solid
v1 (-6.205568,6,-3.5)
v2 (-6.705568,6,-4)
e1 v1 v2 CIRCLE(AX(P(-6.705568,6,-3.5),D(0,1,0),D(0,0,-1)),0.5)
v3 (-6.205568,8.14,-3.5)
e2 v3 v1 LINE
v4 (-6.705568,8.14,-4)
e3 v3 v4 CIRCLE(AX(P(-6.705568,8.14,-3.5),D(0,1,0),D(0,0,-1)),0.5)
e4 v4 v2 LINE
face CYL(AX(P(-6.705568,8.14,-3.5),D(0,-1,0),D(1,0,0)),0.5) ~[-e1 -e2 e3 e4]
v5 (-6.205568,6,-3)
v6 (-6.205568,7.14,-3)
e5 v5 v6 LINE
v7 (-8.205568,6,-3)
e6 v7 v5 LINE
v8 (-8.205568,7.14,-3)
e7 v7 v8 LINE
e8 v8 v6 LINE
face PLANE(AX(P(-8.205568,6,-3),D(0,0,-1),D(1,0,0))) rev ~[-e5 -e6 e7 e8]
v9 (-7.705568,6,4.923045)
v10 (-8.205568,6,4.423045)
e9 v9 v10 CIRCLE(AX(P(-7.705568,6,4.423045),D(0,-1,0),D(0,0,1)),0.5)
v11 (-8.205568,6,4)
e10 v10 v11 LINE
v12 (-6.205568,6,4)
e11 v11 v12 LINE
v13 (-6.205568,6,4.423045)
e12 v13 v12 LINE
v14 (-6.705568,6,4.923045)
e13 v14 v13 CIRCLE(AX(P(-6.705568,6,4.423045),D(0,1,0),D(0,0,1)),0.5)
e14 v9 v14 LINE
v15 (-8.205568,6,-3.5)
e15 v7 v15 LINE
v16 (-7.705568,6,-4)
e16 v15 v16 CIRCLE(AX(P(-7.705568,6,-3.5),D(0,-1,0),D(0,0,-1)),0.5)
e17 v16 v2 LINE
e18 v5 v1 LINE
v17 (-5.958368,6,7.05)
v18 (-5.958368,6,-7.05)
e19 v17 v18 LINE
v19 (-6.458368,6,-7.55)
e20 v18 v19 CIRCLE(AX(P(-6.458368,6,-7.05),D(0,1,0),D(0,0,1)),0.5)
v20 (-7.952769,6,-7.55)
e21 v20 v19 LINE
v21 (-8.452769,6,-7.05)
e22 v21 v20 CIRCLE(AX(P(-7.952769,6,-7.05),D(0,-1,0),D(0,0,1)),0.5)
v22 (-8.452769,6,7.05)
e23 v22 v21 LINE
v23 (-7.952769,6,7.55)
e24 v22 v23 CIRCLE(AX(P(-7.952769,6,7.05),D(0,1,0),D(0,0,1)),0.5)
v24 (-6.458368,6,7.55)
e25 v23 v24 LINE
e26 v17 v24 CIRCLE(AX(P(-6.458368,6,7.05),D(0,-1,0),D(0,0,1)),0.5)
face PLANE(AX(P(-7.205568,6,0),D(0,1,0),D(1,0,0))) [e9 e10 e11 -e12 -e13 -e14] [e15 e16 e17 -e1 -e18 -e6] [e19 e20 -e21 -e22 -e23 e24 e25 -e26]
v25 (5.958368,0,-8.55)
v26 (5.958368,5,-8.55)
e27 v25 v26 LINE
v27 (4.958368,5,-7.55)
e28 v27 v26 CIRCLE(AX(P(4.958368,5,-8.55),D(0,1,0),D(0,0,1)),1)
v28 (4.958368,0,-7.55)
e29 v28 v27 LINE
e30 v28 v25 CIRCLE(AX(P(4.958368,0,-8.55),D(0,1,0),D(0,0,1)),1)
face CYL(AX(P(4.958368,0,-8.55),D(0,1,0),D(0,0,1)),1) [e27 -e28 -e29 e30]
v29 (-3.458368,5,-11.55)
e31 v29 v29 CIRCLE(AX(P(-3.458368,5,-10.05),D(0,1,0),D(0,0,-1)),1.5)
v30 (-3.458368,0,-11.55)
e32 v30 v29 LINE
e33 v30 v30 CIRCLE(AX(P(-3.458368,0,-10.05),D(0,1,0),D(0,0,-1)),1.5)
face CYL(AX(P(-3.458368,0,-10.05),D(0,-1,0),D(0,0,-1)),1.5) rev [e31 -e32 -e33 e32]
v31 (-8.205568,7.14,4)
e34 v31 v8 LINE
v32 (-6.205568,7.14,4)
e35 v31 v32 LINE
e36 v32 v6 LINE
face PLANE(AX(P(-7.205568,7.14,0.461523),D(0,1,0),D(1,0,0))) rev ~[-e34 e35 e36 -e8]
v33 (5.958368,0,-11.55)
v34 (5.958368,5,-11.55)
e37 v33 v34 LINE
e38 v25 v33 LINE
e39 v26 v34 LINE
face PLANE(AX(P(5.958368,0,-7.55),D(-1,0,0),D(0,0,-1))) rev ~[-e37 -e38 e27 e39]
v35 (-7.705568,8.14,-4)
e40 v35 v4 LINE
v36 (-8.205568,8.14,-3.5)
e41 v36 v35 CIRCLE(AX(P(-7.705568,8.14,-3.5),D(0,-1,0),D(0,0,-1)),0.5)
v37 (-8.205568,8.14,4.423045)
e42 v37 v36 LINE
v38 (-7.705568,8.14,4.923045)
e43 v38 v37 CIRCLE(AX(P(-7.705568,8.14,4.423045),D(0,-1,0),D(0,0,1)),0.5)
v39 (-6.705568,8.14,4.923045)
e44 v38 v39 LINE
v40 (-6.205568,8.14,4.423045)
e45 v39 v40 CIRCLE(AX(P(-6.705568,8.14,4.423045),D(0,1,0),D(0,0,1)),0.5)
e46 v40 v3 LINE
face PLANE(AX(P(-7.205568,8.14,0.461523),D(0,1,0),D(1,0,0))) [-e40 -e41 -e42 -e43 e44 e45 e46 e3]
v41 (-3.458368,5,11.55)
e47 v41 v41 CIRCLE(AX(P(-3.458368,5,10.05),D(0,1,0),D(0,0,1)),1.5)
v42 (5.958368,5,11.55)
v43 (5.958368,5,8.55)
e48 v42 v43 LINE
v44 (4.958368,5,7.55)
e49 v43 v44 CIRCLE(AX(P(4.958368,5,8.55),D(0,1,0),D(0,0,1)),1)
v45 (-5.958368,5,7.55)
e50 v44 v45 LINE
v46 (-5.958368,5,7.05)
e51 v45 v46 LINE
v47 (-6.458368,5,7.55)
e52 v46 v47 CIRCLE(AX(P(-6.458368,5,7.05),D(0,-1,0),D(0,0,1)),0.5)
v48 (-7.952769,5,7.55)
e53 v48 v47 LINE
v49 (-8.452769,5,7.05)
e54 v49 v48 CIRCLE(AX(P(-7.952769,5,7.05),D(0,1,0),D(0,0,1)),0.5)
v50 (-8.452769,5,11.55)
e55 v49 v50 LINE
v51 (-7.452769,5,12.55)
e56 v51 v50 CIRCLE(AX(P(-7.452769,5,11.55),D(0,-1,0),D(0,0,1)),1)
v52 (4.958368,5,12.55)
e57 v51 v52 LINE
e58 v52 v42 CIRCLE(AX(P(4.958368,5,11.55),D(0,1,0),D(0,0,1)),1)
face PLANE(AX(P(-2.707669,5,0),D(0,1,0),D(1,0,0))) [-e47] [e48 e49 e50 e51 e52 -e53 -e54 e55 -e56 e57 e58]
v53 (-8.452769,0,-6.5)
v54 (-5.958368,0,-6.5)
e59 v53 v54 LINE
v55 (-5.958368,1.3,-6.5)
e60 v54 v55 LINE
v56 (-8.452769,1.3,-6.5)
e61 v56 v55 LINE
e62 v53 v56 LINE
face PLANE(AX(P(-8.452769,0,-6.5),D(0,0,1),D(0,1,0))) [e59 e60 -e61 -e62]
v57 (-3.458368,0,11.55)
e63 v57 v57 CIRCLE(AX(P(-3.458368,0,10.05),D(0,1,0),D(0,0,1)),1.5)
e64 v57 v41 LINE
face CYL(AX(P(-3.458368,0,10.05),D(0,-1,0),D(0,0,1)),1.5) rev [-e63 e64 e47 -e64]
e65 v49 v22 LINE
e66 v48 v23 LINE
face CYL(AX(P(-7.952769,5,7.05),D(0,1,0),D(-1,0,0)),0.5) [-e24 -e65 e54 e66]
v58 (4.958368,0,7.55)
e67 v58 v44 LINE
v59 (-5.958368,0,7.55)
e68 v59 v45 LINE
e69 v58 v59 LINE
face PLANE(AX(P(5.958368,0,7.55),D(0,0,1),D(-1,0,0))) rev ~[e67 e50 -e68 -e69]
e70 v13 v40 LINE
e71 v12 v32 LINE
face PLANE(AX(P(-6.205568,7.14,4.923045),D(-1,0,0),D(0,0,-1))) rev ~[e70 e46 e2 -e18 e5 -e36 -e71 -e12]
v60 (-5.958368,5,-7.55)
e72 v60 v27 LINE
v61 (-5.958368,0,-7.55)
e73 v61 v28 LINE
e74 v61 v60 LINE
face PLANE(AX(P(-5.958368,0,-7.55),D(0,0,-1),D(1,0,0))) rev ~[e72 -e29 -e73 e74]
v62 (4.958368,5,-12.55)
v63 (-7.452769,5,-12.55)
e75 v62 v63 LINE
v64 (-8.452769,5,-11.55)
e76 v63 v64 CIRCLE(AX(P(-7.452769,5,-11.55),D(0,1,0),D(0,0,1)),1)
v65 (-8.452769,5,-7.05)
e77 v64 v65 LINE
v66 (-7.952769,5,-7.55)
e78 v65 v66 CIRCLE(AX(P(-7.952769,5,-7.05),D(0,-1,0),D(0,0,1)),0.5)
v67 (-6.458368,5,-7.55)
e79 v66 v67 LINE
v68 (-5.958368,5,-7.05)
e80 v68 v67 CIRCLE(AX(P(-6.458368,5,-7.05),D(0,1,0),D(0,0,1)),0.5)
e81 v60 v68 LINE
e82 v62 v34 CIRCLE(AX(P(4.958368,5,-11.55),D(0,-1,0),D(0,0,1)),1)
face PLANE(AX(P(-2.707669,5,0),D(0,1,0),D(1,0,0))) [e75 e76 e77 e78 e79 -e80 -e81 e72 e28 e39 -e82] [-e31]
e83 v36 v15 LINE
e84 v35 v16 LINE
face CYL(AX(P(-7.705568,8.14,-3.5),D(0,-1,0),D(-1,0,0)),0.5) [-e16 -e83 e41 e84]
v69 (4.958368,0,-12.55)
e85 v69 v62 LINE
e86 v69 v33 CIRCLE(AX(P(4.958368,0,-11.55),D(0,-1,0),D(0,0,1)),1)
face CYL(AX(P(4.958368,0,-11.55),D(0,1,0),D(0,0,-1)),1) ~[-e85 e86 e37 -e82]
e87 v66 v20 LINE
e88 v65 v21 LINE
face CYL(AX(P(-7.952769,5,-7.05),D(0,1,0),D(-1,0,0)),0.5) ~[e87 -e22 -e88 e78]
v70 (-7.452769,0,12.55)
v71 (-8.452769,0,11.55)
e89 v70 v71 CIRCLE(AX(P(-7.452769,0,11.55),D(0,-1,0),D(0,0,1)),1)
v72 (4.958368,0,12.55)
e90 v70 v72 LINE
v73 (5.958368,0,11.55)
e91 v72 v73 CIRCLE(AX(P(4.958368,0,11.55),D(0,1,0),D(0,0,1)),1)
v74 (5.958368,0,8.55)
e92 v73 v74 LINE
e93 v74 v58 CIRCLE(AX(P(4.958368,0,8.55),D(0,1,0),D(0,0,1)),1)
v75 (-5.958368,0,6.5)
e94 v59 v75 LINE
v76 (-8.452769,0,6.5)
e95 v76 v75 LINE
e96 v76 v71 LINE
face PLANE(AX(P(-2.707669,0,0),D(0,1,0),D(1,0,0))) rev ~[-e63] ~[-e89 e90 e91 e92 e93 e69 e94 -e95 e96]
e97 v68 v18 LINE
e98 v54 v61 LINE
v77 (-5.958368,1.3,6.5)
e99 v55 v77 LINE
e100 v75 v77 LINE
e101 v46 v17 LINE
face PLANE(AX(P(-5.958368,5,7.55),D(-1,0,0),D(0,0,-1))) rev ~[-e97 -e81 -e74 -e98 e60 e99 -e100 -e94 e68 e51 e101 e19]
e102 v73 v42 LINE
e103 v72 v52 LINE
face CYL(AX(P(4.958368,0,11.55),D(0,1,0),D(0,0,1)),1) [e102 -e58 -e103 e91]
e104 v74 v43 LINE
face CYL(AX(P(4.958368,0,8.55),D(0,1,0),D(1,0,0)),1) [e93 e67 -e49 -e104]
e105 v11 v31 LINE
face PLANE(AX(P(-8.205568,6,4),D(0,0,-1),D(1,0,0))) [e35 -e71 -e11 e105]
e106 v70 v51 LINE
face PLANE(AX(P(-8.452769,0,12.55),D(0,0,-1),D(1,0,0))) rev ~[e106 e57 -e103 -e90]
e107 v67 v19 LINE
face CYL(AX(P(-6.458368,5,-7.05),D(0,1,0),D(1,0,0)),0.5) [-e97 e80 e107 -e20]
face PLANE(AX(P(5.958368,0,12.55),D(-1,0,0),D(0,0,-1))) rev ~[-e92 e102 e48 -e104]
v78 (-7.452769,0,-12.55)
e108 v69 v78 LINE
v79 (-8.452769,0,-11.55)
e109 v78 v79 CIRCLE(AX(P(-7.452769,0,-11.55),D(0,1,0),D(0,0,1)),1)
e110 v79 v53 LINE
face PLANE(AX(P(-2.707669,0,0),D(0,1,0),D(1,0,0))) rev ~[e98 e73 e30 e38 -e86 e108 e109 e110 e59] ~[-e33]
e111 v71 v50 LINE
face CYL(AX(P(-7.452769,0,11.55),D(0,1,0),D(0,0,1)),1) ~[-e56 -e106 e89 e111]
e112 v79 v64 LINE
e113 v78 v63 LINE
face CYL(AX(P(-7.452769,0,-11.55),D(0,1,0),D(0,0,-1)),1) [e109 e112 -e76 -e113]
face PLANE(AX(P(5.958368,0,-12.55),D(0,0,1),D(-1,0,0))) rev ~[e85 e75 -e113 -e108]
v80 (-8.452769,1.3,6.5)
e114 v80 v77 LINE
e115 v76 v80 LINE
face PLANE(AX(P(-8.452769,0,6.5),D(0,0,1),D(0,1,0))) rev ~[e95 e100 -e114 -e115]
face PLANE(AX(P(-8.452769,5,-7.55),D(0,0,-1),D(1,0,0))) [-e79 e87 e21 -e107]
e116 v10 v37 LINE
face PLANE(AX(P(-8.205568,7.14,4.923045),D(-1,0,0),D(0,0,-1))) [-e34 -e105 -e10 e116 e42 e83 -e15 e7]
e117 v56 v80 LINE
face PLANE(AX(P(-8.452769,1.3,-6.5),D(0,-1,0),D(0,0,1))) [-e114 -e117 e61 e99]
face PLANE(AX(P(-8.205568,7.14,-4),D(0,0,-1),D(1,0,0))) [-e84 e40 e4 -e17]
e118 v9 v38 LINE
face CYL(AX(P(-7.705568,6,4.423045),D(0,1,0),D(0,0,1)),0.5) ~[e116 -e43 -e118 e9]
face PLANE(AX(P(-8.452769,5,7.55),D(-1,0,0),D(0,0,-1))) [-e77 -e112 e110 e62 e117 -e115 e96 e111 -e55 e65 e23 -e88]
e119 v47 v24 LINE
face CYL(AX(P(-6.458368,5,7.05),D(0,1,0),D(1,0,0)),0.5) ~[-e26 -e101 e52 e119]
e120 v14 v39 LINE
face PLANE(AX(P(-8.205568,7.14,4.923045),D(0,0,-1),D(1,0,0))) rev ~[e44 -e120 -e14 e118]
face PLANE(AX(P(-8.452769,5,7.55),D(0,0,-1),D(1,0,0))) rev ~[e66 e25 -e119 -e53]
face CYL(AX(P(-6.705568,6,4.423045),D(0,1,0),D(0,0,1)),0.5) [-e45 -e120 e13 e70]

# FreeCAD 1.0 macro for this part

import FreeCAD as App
import Part
import Sketcher

V = App.Vector


def edges_at(feature, points):
    """Names of the edges that pass closest to the given points."""
    edges = feature.Shape.Edges
    near = lambda p: min(range(len(edges)), key=lambda i: edges[i].distToShape(Part.Vertex(*p))[0])
    return sorted({f"Edge{near(p) + 1}" for p in points})


def add_polygon(sketch, points):
    """Adds a closed chain of lines whose ends are joined by coincident constraints."""
    first, n = sketch.GeometryCount, len(points)
    for a, b in zip(points, points[1:] + points[:1]):
        sketch.addGeometry(Part.LineSegment(App.Vector(*a, 0), App.Vector(*b, 0)), False)
    for i in range(n):
        sketch.addConstraint(Sketcher.Constraint("Coincident", first + i, 2, first + (i + 1) % n, 1))

doc = App.newDocument("Part")
body = doc.addObject("PartDesign::Body", "Body")

sketch1 = body.newObject("Sketcher::SketchObject", "Sketch")
sketch1.AttachmentSupport = (doc.getObject("XZ_Plane"), [""])
sketch1.MapMode = "FlatFace"
add_polygon(sketch1, [(6, -12.6), (-8.5, -12.6), (-8.5, 12.6), (6, 12.6), (6, 7.5), (-6, 7.5), (-6, -7.5), (6, -7.5)])
sketch1.addGeometry(Part.Circle(V(-3.5, 10.1, 0), V(0, 0, 1), 1.5), False)
sketch1.addGeometry(Part.Circle(V(-3.5, -10.1, 0), V(0, 0, 1), 1.5), False)
sketch1.addConstraint(Sketcher.Constraint("Horizontal", 0))
sketch1.addConstraint(Sketcher.Constraint("Vertical", 1))
sketch1.addConstraint(Sketcher.Constraint("Horizontal", 2))
sketch1.addConstraint(Sketcher.Constraint("Vertical", 3))
sketch1.addConstraint(Sketcher.Constraint("Horizontal", 4))
sketch1.addConstraint(Sketcher.Constraint("Vertical", 5))
sketch1.addConstraint(Sketcher.Constraint("Horizontal", 6))
sketch1.addConstraint(Sketcher.Constraint("Vertical", 7))
sketch1.addConstraint(Sketcher.Constraint("Equal", 8, 9))
sketch1.addConstraint(Sketcher.Constraint("Symmetric", 3, 2, 5, 2, -1, 1))
sketch1.addConstraint(Sketcher.Constraint("Symmetric", 8, 3, 9, 3, -1))
sketch1.addConstraint(Sketcher.Constraint("Symmetric", 2, 2, 7, 2, -1))
sketch1.addConstraint(Sketcher.Constraint("Diameter", 8, 3.0))
sketch1.addConstraint(Sketcher.Constraint("DistanceY", 3, 2, 3, 1, 5.0))
sketch1.addConstraint(Sketcher.Constraint("DistanceY", 1, 1, 1, 2, 25.1))
sketch1.addConstraint(Sketcher.Constraint("DistanceY", 9, 3, 8, 3, 20.1))
sketch1.addConstraint(Sketcher.Constraint("DistanceX", 4, 2, 8, 3, 2.5))
sketch1.addConstraint(Sketcher.Constraint("DistanceX", 0, 2, 9, 3, 4.994401))
sketch1.addConstraint(Sketcher.Constraint("DistanceX", 0, 2, 0, 1, 14.411137))
pad1 = body.newObject("PartDesign::Pad", "Pad")
pad1.Profile = sketch1
pad1.Length = 5
pad1.Reversed = True

sketch2 = body.newObject("Sketcher::SketchObject", "Sketch001")
sketch2.AttachmentSupport = (doc.getObject("XZ_Plane"), [""])
sketch2.MapMode = "FlatFace"
sketch2.AttachmentOffset = App.Placement(V(0, 0, -5), App.Rotation())
add_polygon(sketch2, [(-8.5, -7.5), (-8.5, 7.5), (-6, 7.5), (-6, -7.5)])
sketch2.addConstraint(Sketcher.Constraint("Vertical", 0))
sketch2.addConstraint(Sketcher.Constraint("Horizontal", 1))
sketch2.addConstraint(Sketcher.Constraint("Vertical", 2))
sketch2.addConstraint(Sketcher.Constraint("Horizontal", 3))
sketch2.addConstraint(Sketcher.Constraint("DistanceY", 0, 1, 0, 2, 15.1))
sketch2.addConstraint(Sketcher.Constraint("DistanceY", -1, 1, 0, 2, 7.55))
sketch2.addConstraint(Sketcher.Constraint("DistanceX", 1, 1, 1, 2, 2.494401))
sketch2.addConstraint(Sketcher.Constraint("DistanceX", 0, 2, -1, 1, 8.452769))
pad2 = body.newObject("PartDesign::Pad", "Pad001")
pad2.Profile = sketch2
pad2.Length = 1
pad2.Reversed = True

sketch3 = body.newObject("Sketcher::SketchObject", "Sketch002")
sketch3.AttachmentSupport = (doc.getObject("YZ_Plane"), [""])
sketch3.MapMode = "FlatFace"
sketch3.AttachmentOffset = App.Placement(V(0, 0, -8.452769), App.Rotation())
add_polygon(sketch3, [(1.3, -6.5), (0, -6.5), (0, 6.5), (1.3, 6.5)])
sketch3.addConstraint(Sketcher.Constraint("Horizontal", 0))
sketch3.addConstraint(Sketcher.Constraint("Vertical", 1))
sketch3.addConstraint(Sketcher.Constraint("Horizontal", 2))
sketch3.addConstraint(Sketcher.Constraint("Vertical", 3))
sketch3.addConstraint(Sketcher.Constraint("Symmetric", 0, 2, 1, 2, -1, 1))
sketch3.addConstraint(Sketcher.Constraint("DistanceY", 1, 1, 1, 2, 13.0))
sketch3.addConstraint(Sketcher.Constraint("DistanceX", 0, 2, 0, 1, 1.3))
pocket1 = body.newObject("PartDesign::Pocket", "Pocket")
pocket1.Profile = sketch3
pocket1.Type = "ThroughAll"
pocket1.Reversed = True

sketch4 = body.newObject("Sketcher::SketchObject", "Sketch003")
sketch4.AttachmentSupport = (doc.getObject("XZ_Plane"), [""])
sketch4.MapMode = "FlatFace"
sketch4.AttachmentOffset = App.Placement(V(0, 0, -6), App.Rotation())
add_polygon(sketch4, [(-8.2, 4), (-8.2, 4.9), (-6.2, 4.9), (-6.2, 4)])
add_polygon(sketch4, [(-8.2, -4), (-8.2, -3), (-6.2, -3), (-6.2, -4)])
sketch4.addConstraint(Sketcher.Constraint("Vertical", 0))
sketch4.addConstraint(Sketcher.Constraint("Horizontal", 1))
sketch4.addConstraint(Sketcher.Constraint("Vertical", 2))
sketch4.addConstraint(Sketcher.Constraint("Horizontal", 3))
sketch4.addConstraint(Sketcher.Constraint("Vertical", 4))
sketch4.addConstraint(Sketcher.Constraint("Horizontal", 5))
sketch4.addConstraint(Sketcher.Constraint("Vertical", 6))
sketch4.addConstraint(Sketcher.Constraint("Horizontal", 7))
sketch4.addConstraint(Sketcher.Constraint("Symmetric", 2, 2, 6, 2, -1))
sketch4.addConstraint(Sketcher.Constraint("Vertical", 3, 2, 4, 2))
sketch4.addConstraint(Sketcher.Constraint("DistanceX", 1, 1, 1, 2, 2.0))
sketch4.addConstraint(Sketcher.Constraint("DistanceY", 4, 1, 4, 2, 1.0))
sketch4.addConstraint(Sketcher.Constraint("DistanceY", -1, 1, 2, 2, 4.0))
sketch4.addConstraint(Sketcher.Constraint("DistanceY", 0, 1, 0, 2, 0.923045))
sketch4.addConstraint(Sketcher.Constraint("DistanceX", 0, 2, -1, 1, 8.205568))
pad3 = body.newObject("PartDesign::Pad", "Pad002")
pad3.Profile = sketch4
pad3.Length = 1.14
pad3.Reversed = True

sketch5 = body.newObject("Sketcher::SketchObject", "Sketch004")
sketch5.AttachmentSupport = (doc.getObject("XZ_Plane"), [""])
sketch5.MapMode = "FlatFace"
sketch5.AttachmentOffset = App.Placement(V(0, 0, -7.14), App.Rotation())
add_polygon(sketch5, [(-8.2, -4), (-8.2, 4.9), (-6.2, 4.9), (-6.2, -4)])
sketch5.addConstraint(Sketcher.Constraint("Vertical", 0))
sketch5.addConstraint(Sketcher.Constraint("Horizontal", 1))
sketch5.addConstraint(Sketcher.Constraint("Vertical", 2))
sketch5.addConstraint(Sketcher.Constraint("Horizontal", 3))
sketch5.addConstraint(Sketcher.Constraint("DistanceX", 1, 1, 1, 2, 2.0))
sketch5.addConstraint(Sketcher.Constraint("DistanceY", 2, 2, -1, 1, 4.0))
sketch5.addConstraint(Sketcher.Constraint("DistanceY", 0, 1, 0, 2, 8.923045))
sketch5.addConstraint(Sketcher.Constraint("DistanceX", 0, 2, -1, 1, 8.205568))
pad4 = body.newObject("PartDesign::Pad", "Pad003")
pad4.Profile = sketch5
pad4.Length = 1
pad4.Reversed = True
doc.recompute()

fillet = body.newObject("PartDesign::Fillet", "Fillet")
fillet.Base = (pad4, edges_at(pad4, [
    (5.958, 2.5, -7.55),
    (5.958, 2.5, 7.55),
    (5.958, 2.5, 12.55),
    (-8.453, 2.5, 12.55),
    (-8.453, 2.5, -12.55),
    (5.958, 2.5, -12.55),
]))
fillet.Radius = 1
doc.recompute()

fillet2 = body.newObject("PartDesign::Fillet", "Fillet001")
fillet2.Base = (fillet, edges_at(fillet, [
    (-5.958, 5.5, 7.55),
    (-5.958, 5.5, -7.55),
    (-8.453, 5.5, -7.55),
    (-8.453, 5.5, 7.55),
    (-8.206, 7.07, 4.923),
    (-6.206, 7.07, 4.923),
    (-6.206, 7.07, -4),
    (-8.206, 7.07, -4),
]))
fillet2.Radius = 0.5

doc.recompute()
